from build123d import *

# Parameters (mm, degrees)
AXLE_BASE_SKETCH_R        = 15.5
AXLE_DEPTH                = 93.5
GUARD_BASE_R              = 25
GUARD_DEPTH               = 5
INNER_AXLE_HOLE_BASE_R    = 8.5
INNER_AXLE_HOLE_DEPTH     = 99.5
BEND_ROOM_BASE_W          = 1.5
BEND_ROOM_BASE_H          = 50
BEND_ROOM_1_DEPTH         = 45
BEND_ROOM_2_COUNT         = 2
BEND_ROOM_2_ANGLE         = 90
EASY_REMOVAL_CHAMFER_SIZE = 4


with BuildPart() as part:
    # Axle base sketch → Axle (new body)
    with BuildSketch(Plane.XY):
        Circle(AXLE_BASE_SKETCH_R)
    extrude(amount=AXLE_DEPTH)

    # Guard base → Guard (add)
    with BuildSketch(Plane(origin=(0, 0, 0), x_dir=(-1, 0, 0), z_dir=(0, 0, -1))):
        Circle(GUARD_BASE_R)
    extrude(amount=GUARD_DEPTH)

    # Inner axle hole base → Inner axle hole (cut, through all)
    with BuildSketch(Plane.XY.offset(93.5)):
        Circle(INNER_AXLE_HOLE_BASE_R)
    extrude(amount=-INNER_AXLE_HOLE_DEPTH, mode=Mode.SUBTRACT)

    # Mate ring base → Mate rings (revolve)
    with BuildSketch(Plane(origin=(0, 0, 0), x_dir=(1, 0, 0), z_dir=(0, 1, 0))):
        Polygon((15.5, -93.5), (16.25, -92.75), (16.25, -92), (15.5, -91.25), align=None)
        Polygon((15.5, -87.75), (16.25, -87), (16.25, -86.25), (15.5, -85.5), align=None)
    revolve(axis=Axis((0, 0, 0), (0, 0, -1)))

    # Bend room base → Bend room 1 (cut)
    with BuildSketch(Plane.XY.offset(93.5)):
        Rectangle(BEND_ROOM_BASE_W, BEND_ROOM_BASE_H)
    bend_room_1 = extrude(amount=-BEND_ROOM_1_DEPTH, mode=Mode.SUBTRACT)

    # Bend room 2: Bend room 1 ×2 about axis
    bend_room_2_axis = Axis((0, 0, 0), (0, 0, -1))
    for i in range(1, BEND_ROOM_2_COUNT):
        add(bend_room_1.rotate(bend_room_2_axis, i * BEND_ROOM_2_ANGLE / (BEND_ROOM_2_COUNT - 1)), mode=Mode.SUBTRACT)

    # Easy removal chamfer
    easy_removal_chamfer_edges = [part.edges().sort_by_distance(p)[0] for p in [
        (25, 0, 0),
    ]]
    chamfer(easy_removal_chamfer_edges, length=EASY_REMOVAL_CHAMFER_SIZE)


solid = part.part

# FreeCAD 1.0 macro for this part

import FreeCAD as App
import Part
import Sketcher


def edges_at(feature, points):
    """Names of the edges that pass closest to the given points."""
    edges = feature.Shape.Edges
    near = lambda p: min(range(len(edges)), key=lambda i: edges[i].distToShape(Part.Vertex(*p))[0])
    return sorted({f"Edge{near(p) + 1}" for p in points})


def add_polygon(sketch, points):
    """Adds a closed chain of lines whose ends are joined by coincident constraints."""
    first, n = sketch.GeometryCount, len(points)
    for a, b in zip(points, points[1:] + points[:1]):
        sketch.addGeometry(Part.LineSegment(App.Vector(*a, 0), App.Vector(*b, 0)), False)
    for i in range(n):
        sketch.addConstraint(Sketcher.Constraint("Coincident", first + i, 2, first + (i + 1) % n, 1))

doc = App.newDocument("Part")
params = doc.addObject("Spreadsheet::Sheet", "Params")
for row, (alias, value) in enumerate([
    ("sketch1_diameter", "31 mm"),
    ("pad1_length", "93.5 mm"),
    ("sketch2_diameter", "50 mm"),
    ("pad2_length", "5 mm"),
    ("sketch3_diameter", "17 mm"),
    ("sketch4_height", "0.75 mm"),
    ("revolution_angle", "360 deg"),
    ("sketch5_height", "50 mm"),
    ("sketch5_width", "1.5 mm"),
    ("pocket2_length", "45 mm"),
    ("chamfer_size", "4 mm"),
], start=1):
    params.set(f"A{row}", alias)
    params.set(f"B{row}", "=" + value)
    params.setAlias(f"B{row}", alias)

body = doc.addObject("PartDesign::Body", "Body")

# Sketch on XY plane
sketch1 = doc.addObject("Sketcher::SketchObject", "Sketch")
body.addObject(sketch1)
sketch1.AttachmentSupport = (doc.XY_Plane, [""])
sketch1.MapMode = "FlatFace"
sketch1.addGeometry(Part.Circle(App.Vector(0, 0, 0), App.Vector(0, 0, 1), 16), False)
sketch1.addConstraint([
    Sketcher.Constraint("Coincident", 0, 3, -1, 1),
    Sketcher.Constraint("Diameter", 0, 31.0),
])
sketch1.setExpression("Constraints[1]", "Params.sketch1_diameter")
pad1 = doc.addObject("PartDesign::Pad", "Pad")
body.addObject(pad1)
pad1.Profile = sketch1
pad1.setExpression("Length", "Params.pad1_length")

# Sketch on XY plane
sketch2 = doc.addObject("Sketcher::SketchObject", "Sketch001")
body.addObject(sketch2)
sketch2.AttachmentSupport = (doc.XY_Plane, [""])
sketch2.MapMode = "FlatFace"
sketch2.addGeometry(Part.Circle(App.Vector(0, 0, 0), App.Vector(0, 0, 1), 25), False)
sketch2.addConstraint([
    Sketcher.Constraint("Coincident", 0, 3, -1, 1),
    Sketcher.Constraint("Diameter", 0, 50.0),
])
sketch2.setExpression("Constraints[1]", "Params.sketch2_diameter")
pad2 = doc.addObject("PartDesign::Pad", "Pad001")
body.addObject(pad2)
pad2.Profile = sketch2
pad2.setExpression("Length", "Params.pad2_length")
pad2.Reversed = True

# Sketch on XY plane
sketch3 = doc.addObject("Sketcher::SketchObject", "Sketch002")
body.addObject(sketch3)
sketch3.AttachmentSupport = (doc.XY_Plane, [""])
sketch3.MapMode = "FlatFace"
sketch3.AttachmentOffset = App.Placement(App.Vector(0, 0, 93.5), App.Rotation())
sketch3.addGeometry(Part.Circle(App.Vector(0, 0, 0), App.Vector(0, 0, 1), 8), False)
sketch3.addConstraint([
    Sketcher.Constraint("Coincident", 0, 3, -1, 1),
    Sketcher.Constraint("Diameter", 0, 17.0),
])
sketch3.setExpression("Constraints[1]", "Params.sketch3_diameter")
pocket1 = doc.addObject("PartDesign::Pocket", "Pocket")
body.addObject(pocket1)
pocket1.Profile = sketch3
pocket1.Type = "ThroughAll"

# Sketch on XZ plane
sketch4 = doc.addObject("Sketcher::SketchObject", "Sketch003")
body.addObject(sketch4)
sketch4.AttachmentSupport = (doc.XZ_Plane, [""])
sketch4.MapMode = "FlatFace"
add_polygon(sketch4, [(15.5, 93.5), (16.2, 92.8), (16.2, 92), (15.5, 91.2)])  # lines 0-3
add_polygon(sketch4, [(15.5, 87.8), (16.2, 87), (16.2, 86.2), (15.5, 85.5)])  # lines 4-7
sketch4.addConstraint([
    Sketcher.Constraint("Vertical", 1),
    Sketcher.Constraint("Vertical", 3),
    Sketcher.Constraint("Vertical", 5),
    Sketcher.Constraint("Vertical", 7),
    Sketcher.Constraint("Perpendicular", 0, 2),
    Sketcher.Constraint("Perpendicular", 2, 4),
    Sketcher.Constraint("Perpendicular", 4, 6),
    Sketcher.Constraint("Vertical", 1, 2, 4, 2),
    Sketcher.Constraint("Vertical", 3, 2, 6, 2),
    Sketcher.Constraint("Equal", 1, 5),
    Sketcher.Constraint("Equal", 0, 2),
    Sketcher.Constraint("DistanceY", -1, 1, 1, 2, 92.0),
    Sketcher.Constraint("DistanceY", -1, 1, 4, 2, 87.0),
    Sketcher.Constraint("DistanceY", 5, 2, 2, 2, 5.0),
    Sketcher.Constraint("DistanceY", 1, 2, 1, 1, 0.75),
    Sketcher.Constraint("DistanceX", -1, 1, 2, 2, 15.5),
])
sketch4.setExpression("Constraints[22]", "Params.sketch4_height")
revolution = doc.addObject("PartDesign::Revolution", "Revolution")
body.addObject(revolution)
revolution.Profile = sketch4
revolution.ReferenceAxis = (sketch4, ["V_Axis"])
revolution.setExpression("Angle", "Params.revolution_angle")

# Sketch on XY plane
sketch5 = doc.addObject("Sketcher::SketchObject", "Sketch004")
body.addObject(sketch5)
sketch5.AttachmentSupport = (doc.XY_Plane, [""])
sketch5.MapMode = "FlatFace"
sketch5.AttachmentOffset = App.Placement(App.Vector(0, 0, 93.5), App.Rotation())
add_polygon(sketch5, [(-0.8, 25), (-0.8, -25), (0.8, -25), (0.8, 25)])  # lines 0-3
sketch5.addConstraint([
    Sketcher.Constraint("Vertical", 0),
    Sketcher.Constraint("Horizontal", 1),
    Sketcher.Constraint("Vertical", 2),
    Sketcher.Constraint("Horizontal", 3),
    Sketcher.Constraint("Symmetric", 0, 2, 2, 2, -1, 1),
    Sketcher.Constraint("DistanceY", 0, 2, 0, 1, 50.0),
    Sketcher.Constraint("DistanceX", 1, 1, 1, 2, 1.5),
])
sketch5.setExpression("Constraints[9]", "Params.sketch5_height")
sketch5.setExpression("Constraints[10]", "Params.sketch5_width")
pocket2 = doc.addObject("PartDesign::Pocket", "Pocket001")
body.addObject(pocket2)
pocket2.Profile = sketch5
pocket2.setExpression("Length", "Params.pocket2_length")
doc.recompute()

polarpattern = doc.addObject("PartDesign::PolarPattern", "PolarPattern")
body.addObject(polarpattern)
polarpattern.Originals = [pocket2]
polarpattern.Axis = (doc.Z_Axis, [""])
polarpattern.Angle = 90
polarpattern.Occurrences = 2
polarpattern.Reversed = True
body.Tip = polarpattern
doc.recompute()

chamfer = doc.addObject("PartDesign::Chamfer", "Chamfer")
body.addObject(chamfer)
chamfer.Base = (polarpattern, edges_at(polarpattern, [(25, 0, 0)]))
chamfer.setExpression("Size", "Params.chamfer_size")

doc.recompute()
